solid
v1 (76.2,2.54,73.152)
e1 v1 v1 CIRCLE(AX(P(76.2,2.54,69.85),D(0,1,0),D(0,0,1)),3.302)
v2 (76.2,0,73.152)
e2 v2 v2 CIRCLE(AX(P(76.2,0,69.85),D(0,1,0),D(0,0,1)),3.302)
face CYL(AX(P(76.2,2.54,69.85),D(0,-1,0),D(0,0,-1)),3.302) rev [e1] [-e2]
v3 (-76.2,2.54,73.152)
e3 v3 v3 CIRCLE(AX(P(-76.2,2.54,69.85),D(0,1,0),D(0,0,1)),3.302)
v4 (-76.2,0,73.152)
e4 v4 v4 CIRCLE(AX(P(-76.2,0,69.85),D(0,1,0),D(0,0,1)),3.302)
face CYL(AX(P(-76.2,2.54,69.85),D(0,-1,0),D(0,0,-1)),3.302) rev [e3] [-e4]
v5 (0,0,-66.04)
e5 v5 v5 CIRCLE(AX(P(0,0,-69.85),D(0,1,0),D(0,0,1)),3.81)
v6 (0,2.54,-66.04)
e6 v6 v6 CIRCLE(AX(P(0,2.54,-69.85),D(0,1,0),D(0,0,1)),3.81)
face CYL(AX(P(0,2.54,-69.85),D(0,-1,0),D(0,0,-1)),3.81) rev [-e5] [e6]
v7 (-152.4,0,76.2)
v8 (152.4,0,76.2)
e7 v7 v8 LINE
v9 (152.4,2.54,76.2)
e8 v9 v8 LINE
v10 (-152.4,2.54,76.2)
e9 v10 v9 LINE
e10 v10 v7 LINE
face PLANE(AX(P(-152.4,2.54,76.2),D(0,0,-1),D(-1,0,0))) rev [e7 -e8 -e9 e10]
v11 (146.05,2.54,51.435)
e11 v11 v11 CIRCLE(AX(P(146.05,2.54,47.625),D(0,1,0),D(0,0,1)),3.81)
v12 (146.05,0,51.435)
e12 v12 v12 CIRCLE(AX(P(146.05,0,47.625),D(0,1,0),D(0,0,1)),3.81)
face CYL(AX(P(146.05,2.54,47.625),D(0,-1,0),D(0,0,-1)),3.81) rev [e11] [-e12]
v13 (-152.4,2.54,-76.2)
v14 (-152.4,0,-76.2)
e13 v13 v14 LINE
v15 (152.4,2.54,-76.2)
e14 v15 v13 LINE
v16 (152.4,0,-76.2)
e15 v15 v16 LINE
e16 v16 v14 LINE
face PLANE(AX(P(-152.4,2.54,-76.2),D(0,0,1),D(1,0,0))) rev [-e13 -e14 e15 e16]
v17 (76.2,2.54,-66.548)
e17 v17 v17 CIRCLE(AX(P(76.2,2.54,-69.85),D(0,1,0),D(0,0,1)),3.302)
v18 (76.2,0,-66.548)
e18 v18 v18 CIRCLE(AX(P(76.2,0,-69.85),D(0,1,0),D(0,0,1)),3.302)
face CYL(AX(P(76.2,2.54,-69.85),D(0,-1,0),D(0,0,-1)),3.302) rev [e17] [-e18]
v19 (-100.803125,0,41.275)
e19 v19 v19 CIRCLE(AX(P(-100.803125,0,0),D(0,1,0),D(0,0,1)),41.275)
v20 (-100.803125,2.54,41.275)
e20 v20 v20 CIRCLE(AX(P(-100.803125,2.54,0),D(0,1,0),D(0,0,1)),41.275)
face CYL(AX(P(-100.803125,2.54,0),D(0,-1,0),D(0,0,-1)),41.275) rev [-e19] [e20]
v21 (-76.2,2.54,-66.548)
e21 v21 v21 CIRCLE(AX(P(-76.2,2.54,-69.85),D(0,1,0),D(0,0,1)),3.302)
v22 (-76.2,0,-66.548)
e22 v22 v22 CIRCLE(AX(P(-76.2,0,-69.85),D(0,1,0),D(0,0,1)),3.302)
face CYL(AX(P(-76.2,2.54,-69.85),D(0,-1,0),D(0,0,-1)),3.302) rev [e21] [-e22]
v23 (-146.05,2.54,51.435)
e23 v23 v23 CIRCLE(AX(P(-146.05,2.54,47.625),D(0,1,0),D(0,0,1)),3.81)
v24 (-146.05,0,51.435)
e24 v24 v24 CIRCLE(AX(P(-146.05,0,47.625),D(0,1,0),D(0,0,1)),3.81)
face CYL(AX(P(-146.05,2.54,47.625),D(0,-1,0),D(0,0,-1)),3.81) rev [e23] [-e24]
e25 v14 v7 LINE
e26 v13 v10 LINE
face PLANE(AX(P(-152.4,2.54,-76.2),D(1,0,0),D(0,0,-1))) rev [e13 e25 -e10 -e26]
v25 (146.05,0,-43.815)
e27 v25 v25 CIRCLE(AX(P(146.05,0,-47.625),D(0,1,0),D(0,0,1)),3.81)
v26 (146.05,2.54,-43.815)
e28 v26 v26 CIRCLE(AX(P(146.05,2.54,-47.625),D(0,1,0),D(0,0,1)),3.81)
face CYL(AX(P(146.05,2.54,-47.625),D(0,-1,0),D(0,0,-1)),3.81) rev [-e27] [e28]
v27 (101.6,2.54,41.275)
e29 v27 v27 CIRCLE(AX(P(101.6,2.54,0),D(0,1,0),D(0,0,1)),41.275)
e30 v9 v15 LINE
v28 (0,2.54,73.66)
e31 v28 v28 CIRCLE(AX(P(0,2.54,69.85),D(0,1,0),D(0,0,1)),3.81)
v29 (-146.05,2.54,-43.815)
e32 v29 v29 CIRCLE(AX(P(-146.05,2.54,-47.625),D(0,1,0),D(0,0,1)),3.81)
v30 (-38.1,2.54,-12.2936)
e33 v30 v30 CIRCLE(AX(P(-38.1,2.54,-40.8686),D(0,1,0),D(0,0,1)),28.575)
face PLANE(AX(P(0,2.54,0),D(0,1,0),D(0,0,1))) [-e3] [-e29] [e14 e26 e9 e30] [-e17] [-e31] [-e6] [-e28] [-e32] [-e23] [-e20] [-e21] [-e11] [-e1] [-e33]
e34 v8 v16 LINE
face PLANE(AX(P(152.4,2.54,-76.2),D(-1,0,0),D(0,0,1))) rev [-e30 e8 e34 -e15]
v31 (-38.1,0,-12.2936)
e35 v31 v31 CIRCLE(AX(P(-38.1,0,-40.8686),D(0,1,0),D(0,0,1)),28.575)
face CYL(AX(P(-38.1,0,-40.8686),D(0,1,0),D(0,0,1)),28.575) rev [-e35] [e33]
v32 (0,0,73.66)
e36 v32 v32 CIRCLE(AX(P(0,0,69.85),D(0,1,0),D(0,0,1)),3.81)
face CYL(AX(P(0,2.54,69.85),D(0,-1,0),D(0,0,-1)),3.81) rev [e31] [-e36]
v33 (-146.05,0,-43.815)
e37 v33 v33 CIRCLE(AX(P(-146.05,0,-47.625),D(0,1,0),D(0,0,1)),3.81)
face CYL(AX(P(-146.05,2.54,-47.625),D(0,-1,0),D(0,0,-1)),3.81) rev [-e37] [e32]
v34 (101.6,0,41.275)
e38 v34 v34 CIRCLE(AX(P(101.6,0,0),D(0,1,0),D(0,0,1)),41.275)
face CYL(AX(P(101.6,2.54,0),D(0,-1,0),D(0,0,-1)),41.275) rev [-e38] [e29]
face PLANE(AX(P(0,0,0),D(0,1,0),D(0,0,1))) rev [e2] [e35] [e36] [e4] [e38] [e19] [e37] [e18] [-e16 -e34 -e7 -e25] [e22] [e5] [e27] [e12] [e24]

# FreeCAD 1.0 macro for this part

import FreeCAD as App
import Part
import Sketcher
from FreeCAD import Vector
Q = App.Units.Quantity

doc = App.newDocument("Part")
body = doc.addObject("PartDesign::Body", "Body")

# Sketch on XZ plane
sketch1 = body.newObject("Sketcher::SketchObject", "Sketch")
sketch1.AttachmentSupport = (doc.getObject("XZ_Plane"), [""])
sketch1.MapMode = "FlatFace"
sketch1.addGeometry(Part.LineSegment(Vector(-152.4, -76.2, 0), Vector(-152.4, 76.2, 0)), False)
sketch1.addGeometry(Part.LineSegment(Vector(-152.4, 76.2, 0), Vector(152.4, 76.2, 0)), False)
sketch1.addGeometry(Part.LineSegment(Vector(152.4, 76.2, 0), Vector(152.4, -76.2, 0)), False)
sketch1.addGeometry(Part.LineSegment(Vector(152.4, -76.2, 0), Vector(-152.4, -76.2, 0)), False)
sketch1.addGeometry(Part.Circle(Vector(-76.2, 69.85, 0), Vector(0, 0, 1), 3.302), False)
sketch1.addGeometry(Part.Circle(Vector(-146.05, 47.625, 0), Vector(0, 0, 1), 3.81), False)
sketch1.addGeometry(Part.Circle(Vector(-100.803125, 0, 0), Vector(0, 0, 1), 41.275), False)
sketch1.addGeometry(Part.Circle(Vector(0, 69.85, 0), Vector(0, 0, 1), 3.81), False)
sketch1.addGeometry(Part.Circle(Vector(76.2, 69.85, 0), Vector(0, 0, 1), 3.302), False)
sketch1.addGeometry(Part.Circle(Vector(146.05, 47.625, 0), Vector(0, 0, 1), 3.81), False)
sketch1.addGeometry(Part.Circle(Vector(101.6, 0, 0), Vector(0, 0, 1), 41.275), False)
sketch1.addGeometry(Part.Circle(Vector(-146.05, -47.625, 0), Vector(0, 0, 1), 3.81), False)
sketch1.addGeometry(Part.Circle(Vector(-76.2, -69.85, 0), Vector(0, 0, 1), 3.302), False)
sketch1.addGeometry(Part.Circle(Vector(0, -69.85, 0), Vector(0, 0, 1), 3.81), False)
sketch1.addGeometry(Part.Circle(Vector(146.05, -47.625, 0), Vector(0, 0, 1), 3.81), False)
sketch1.addGeometry(Part.Circle(Vector(76.2, -69.85, 0), Vector(0, 0, 1), 3.302), False)
sketch1.addConstraint(Sketcher.Constraint("Coincident", 0, 2, 1, 1))
sketch1.addConstraint(Sketcher.Constraint("Coincident", 1, 2, 2, 1))
sketch1.addConstraint(Sketcher.Constraint("Coincident", 2, 2, 3, 1))
sketch1.addConstraint(Sketcher.Constraint("Coincident", 3, 2, 0, 1))
sketch1.addConstraint(Sketcher.Constraint("Vertical", 0))
sketch1.addConstraint(Sketcher.Constraint("Horizontal", 1))
sketch1.addConstraint(Sketcher.Constraint("Vertical", 2))
sketch1.addConstraint(Sketcher.Constraint("Horizontal", 3))
sketch1.addConstraint(Sketcher.Constraint("Equal", 5, 7))
sketch1.addConstraint(Sketcher.Constraint("Equal", 4, 8))
sketch1.addConstraint(Sketcher.Constraint("Equal", 7, 9))
sketch1.addConstraint(Sketcher.Constraint("Equal", 6, 10))
sketch1.addConstraint(Sketcher.Constraint("Equal", 9, 11))
sketch1.addConstraint(Sketcher.Constraint("Equal", 8, 12))
sketch1.addConstraint(Sketcher.Constraint("Equal", 11, 13))
sketch1.addConstraint(Sketcher.Constraint("Equal", 13, 14))
sketch1.addConstraint(Sketcher.Constraint("Equal", 12, 15))
sketch1.addConstraint(Sketcher.Constraint("Symmetric", 9, 3, 11, 3, -1, 1))
sketch1.addConstraint(Sketcher.Constraint("Symmetric", 8, 3, 12, 3, -1, 1))
sketch1.addConstraint(Sketcher.Constraint("Symmetric", 7, 3, 13, 3, -1, 1))
sketch1.addConstraint(Sketcher.Constraint("Symmetric", 5, 3, 14, 3, -1, 1))
sketch1.addConstraint(Sketcher.Constraint("Symmetric", 4, 3, 15, 3, -1, 1))
sketch1.addConstraint(Sketcher.Constraint("Symmetric", 0, 2, 2, 2, -1, 1))
sketch1.addConstraint(Sketcher.Constraint("Symmetric", 4, 3, 8, 3, -2))
sketch1.addConstraint(Sketcher.Constraint("Symmetric", 5, 3, 9, 3, -2))
sketch1.addConstraint(Sketcher.Constraint("PointOnObject", 6, 3, -1))
sketch1.addConstraint(Sketcher.Constraint("PointOnObject", 7, 3, -2))
sketch1.addConstraint(Sketcher.Constraint("PointOnObject", 10, 3, -1))
sketch1.addConstraint(Sketcher.Constraint("Horizontal", 4, 3, 7, 3))
sketch1.addConstraint(Sketcher.Constraint("Diameter", 5, Q("0.3 in")))
sketch1.addConstraint(Sketcher.Constraint("Diameter", 4, Q("0.26 in")))
sketch1.addConstraint(Sketcher.Constraint("Diameter", 6, Q("3.25 in")))
sketch1.addConstraint(Sketcher.Constraint("DistanceX", 1, 1, 1, 2, Q("12 in")))
sketch1.addConstraint(Sketcher.Constraint("DistanceY", 0, 1, 0, 2, Q("6 in")))
sketch1.addConstraint(Sketcher.Constraint("DistanceX", 4, 3, -1, 1, Q("3 in")))
sketch1.addConstraint(Sketcher.Constraint("DistanceX", -1, 1, 10, 3, Q("4 in")))
sketch1.addConstraint(Sketcher.Constraint("DistanceX", 5, 3, 9, 3, Q("11.5 in")))
sketch1.addConstraint(Sketcher.Constraint("DistanceY", 12, 3, 4, 3, Q("5.5 in")))
sketch1.addConstraint(Sketcher.Constraint("DistanceY", 11, 3, 5, 3, Q("3.75 in")))
sketch1.addConstraint(Sketcher.Constraint("DistanceX", 6, 3, -1, 1, 100.803125))
pad1 = body.newObject("PartDesign::Pad", "Pad")
pad1.Profile = sketch1
pad1.Length = Q("0.1 in")
pad1.Reversed = True

# Sketch on XZ plane
sketch2 = body.newObject("Sketcher::SketchObject", "Sketch001")
sketch2.AttachmentSupport = (doc.getObject("XZ_Plane"), [""])
sketch2.MapMode = "FlatFace"
sketch2.AttachmentOffset = App.Placement(Vector(0, 0, -0.1 * 25.4), App.Rotation())
sketch2.addGeometry(Part.Circle(Vector(-38.1, -40.8686, 0), Vector(0, 0, 1), 28.575), False)
sketch2.addConstraint(Sketcher.Constraint("Diameter", 0, Q("2.25 in")))
sketch2.addConstraint(Sketcher.Constraint("DistanceX", 0, 3, -1, 1, Q("1.5 in")))
sketch2.addConstraint(Sketcher.Constraint("DistanceY", 0, 3, -1, 1, Q("1.609 in")))
pocket1 = body.newObject("PartDesign::Pocket", "Pocket")
pocket1.Profile = sketch2
pocket1.Type = "ThroughAll"
pocket1.Reversed = True

doc.recompute()
